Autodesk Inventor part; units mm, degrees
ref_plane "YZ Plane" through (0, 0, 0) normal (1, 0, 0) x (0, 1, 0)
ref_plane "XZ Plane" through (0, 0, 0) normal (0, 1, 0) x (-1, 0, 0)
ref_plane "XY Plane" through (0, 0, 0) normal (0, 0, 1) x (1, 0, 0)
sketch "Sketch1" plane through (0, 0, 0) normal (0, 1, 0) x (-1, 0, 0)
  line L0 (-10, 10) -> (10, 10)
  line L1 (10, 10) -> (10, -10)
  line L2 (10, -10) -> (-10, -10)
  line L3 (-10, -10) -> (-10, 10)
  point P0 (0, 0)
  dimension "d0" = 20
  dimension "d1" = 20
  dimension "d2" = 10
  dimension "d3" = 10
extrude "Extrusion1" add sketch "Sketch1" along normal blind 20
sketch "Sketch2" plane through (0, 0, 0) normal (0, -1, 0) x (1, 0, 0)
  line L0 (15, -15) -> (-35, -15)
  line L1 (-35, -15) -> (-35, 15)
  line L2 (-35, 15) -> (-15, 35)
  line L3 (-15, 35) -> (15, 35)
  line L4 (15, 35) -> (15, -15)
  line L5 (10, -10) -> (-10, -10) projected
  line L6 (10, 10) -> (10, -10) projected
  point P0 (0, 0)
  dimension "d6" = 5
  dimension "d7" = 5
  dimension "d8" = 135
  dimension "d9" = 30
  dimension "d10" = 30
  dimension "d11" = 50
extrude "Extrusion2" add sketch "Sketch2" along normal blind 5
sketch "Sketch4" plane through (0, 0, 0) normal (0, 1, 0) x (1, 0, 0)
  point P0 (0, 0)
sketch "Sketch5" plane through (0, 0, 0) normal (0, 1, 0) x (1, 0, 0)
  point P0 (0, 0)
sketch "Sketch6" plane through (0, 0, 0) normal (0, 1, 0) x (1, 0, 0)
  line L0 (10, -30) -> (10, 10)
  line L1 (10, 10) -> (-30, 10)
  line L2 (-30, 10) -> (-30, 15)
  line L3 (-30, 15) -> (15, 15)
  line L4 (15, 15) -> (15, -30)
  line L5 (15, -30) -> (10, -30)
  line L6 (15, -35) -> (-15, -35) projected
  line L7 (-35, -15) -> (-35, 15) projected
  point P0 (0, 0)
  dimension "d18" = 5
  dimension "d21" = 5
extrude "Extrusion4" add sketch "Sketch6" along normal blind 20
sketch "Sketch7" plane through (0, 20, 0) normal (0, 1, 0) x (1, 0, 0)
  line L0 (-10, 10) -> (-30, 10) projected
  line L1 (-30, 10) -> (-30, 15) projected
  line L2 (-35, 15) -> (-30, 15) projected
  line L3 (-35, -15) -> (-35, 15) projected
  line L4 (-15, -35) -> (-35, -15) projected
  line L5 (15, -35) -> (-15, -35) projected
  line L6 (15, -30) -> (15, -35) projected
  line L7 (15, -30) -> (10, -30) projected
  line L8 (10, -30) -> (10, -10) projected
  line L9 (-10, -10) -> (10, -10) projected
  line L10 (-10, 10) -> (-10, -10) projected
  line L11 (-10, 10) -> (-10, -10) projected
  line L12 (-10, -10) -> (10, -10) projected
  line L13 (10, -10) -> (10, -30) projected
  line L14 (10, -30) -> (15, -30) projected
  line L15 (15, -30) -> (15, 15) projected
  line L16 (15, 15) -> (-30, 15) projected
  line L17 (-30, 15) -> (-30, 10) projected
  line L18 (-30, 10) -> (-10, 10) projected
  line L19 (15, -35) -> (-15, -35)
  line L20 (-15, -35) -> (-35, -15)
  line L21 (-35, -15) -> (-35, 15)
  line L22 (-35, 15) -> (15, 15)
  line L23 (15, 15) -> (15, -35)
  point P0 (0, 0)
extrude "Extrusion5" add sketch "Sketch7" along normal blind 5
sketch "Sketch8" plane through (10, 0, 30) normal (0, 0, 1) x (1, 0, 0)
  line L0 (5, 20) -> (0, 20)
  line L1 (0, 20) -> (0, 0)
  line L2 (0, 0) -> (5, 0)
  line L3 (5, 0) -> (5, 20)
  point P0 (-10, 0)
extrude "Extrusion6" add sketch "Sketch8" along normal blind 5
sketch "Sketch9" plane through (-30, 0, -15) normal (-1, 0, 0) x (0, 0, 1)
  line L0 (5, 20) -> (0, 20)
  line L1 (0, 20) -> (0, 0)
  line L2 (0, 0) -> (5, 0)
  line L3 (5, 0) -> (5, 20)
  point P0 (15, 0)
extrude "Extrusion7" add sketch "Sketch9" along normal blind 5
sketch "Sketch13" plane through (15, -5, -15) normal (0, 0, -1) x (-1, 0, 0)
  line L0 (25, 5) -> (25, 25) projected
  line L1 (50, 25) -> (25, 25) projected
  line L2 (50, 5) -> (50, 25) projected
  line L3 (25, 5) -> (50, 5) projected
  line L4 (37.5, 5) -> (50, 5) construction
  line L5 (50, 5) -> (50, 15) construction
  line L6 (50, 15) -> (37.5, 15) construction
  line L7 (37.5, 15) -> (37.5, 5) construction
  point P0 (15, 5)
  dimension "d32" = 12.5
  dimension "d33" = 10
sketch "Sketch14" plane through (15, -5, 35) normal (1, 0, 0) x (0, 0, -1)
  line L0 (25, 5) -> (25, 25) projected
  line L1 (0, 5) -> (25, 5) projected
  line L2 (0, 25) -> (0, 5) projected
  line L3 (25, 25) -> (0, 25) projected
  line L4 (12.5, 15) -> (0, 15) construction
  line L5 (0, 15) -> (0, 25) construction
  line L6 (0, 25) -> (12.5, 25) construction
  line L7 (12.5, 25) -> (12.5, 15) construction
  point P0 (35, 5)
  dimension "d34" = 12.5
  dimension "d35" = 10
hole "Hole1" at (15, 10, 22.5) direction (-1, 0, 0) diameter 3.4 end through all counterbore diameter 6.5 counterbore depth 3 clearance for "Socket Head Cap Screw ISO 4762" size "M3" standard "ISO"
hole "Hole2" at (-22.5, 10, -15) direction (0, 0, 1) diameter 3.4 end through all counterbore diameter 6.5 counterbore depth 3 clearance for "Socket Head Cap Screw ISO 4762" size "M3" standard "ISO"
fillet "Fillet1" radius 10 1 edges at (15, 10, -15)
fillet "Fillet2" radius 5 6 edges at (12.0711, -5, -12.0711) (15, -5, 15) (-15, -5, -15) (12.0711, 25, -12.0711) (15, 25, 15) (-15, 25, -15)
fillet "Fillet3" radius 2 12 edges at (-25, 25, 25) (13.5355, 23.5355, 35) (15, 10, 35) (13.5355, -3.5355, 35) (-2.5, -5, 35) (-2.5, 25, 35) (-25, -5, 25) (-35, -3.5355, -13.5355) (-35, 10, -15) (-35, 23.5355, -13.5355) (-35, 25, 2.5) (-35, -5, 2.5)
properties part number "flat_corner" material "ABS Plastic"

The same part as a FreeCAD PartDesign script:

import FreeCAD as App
import Part
import Sketcher


def edges_at(feature, points):
    """Names of the edges that pass closest to the given points."""
    edges = feature.Shape.Edges
    near = lambda p: min(range(len(edges)), key=lambda i: edges[i].distToShape(Part.Vertex(*p))[0])
    return sorted({f"Edge{near(p) + 1}" for p in points})

doc = App.newDocument("Part")
body = doc.addObject("PartDesign::Body", "Body")

# Sketch on XZ plane
sketch1 = body.newObject("Sketcher::SketchObject", "Sketch")
sketch1.AttachmentSupport = (doc.getObject("XZ_Plane"), [""])
sketch1.MapMode = "FlatFace"
sketch1.addGeometry([
    Part.LineSegment(App.Vector(-10, 10, 0), App.Vector(10, 10, 0)),
    Part.LineSegment(App.Vector(10, 10, 0), App.Vector(10, -10, 0)),
    Part.LineSegment(App.Vector(10, -10, 0), App.Vector(-10, -10, 0)),
    Part.LineSegment(App.Vector(-10, -10, 0), App.Vector(-10, 10, 0)),
], False)
sketch1.addConstraint([
    Sketcher.Constraint("Coincident", 0, 2, 1, 1),
    Sketcher.Constraint("Coincident", 1, 2, 2, 1),
    Sketcher.Constraint("Coincident", 2, 2, 3, 1),
    Sketcher.Constraint("Coincident", 3, 2, 0, 1),
    Sketcher.Constraint("Horizontal", 0),
    Sketcher.Constraint("Vertical", 1),
    Sketcher.Constraint("Horizontal", 2),
    Sketcher.Constraint("Vertical", 3),
    Sketcher.Constraint("Symmetric", 0, 2, 2, 2, -1, 1),
    Sketcher.Constraint("Equal", 2, 1),
    Sketcher.Constraint("DistanceX", 0, 1, 0, 2, 20.0),
])
pad1 = body.newObject("PartDesign::Pad", "Pad")
pad1.Profile = sketch1
pad1.Length = 20
pad1.Reversed = True

# Sketch on XZ plane
sketch2 = body.newObject("Sketcher::SketchObject", "Sketch001")
sketch2.AttachmentSupport = (doc.getObject("XZ_Plane"), [""])
sketch2.MapMode = "FlatFace"
sketch2.addGeometry([
    Part.LineSegment(App.Vector(-35, -15, 0), App.Vector(15, -15, 0)),  # 0
    Part.LineSegment(App.Vector(15, -15, 0), App.Vector(15, 35, 0)),  # 1
    Part.LineSegment(App.Vector(15, 35, 0), App.Vector(-15, 35, 0)),  # 2
    Part.LineSegment(App.Vector(-15, 35, 0), App.Vector(-35, 15, 0)),  # 3
    Part.LineSegment(App.Vector(-35, 15, 0), App.Vector(-35, -15, 0)),  # 4
], False)
sketch2.addConstraint([
    Sketcher.Constraint("Coincident", 0, 2, 1, 1),
    Sketcher.Constraint("Coincident", 1, 2, 2, 1),
    Sketcher.Constraint("Coincident", 2, 2, 3, 1),
    Sketcher.Constraint("Coincident", 3, 2, 4, 1),
    Sketcher.Constraint("Coincident", 4, 2, 0, 1),
    Sketcher.Constraint("Horizontal", 0),
    Sketcher.Constraint("Vertical", 1),
    Sketcher.Constraint("Horizontal", 2),
    Sketcher.Constraint("Vertical", 4),
    Sketcher.Constraint("Equal", 0, 1),
    Sketcher.Constraint("Equal", 2, 4),
    Sketcher.Constraint("DistanceX", 0, 1, 0, 2, 50.0),
    Sketcher.Constraint("DistanceX", 2, 2, 2, 1, 30.0),
    Sketcher.Constraint("DistanceX", -1, 1, 0, 2, 15.0),
    Sketcher.Constraint("DistanceY", 0, 2, -1, 1, 15.0),
])
pad2 = body.newObject("PartDesign::Pad", "Pad001")
pad2.Profile = sketch2
pad2.Length = 5

# Sketch on XZ plane
sketch3 = body.newObject("Sketcher::SketchObject", "Sketch002")
sketch3.AttachmentSupport = (doc.getObject("XZ_Plane"), [""])
sketch3.MapMode = "FlatFace"
sketch3.addGeometry([
    Part.LineSegment(App.Vector(10, -10, 0), App.Vector(10, 30, 0)),  # 0
    Part.LineSegment(App.Vector(10, 30, 0), App.Vector(15, 30, 0)),  # 1
    Part.LineSegment(App.Vector(15, 30, 0), App.Vector(15, -15, 0)),  # 2
    Part.LineSegment(App.Vector(15, -15, 0), App.Vector(-30, -15, 0)),  # 3
    Part.LineSegment(App.Vector(-30, -15, 0), App.Vector(-30, -10, 0)),  # 4
    Part.LineSegment(App.Vector(-30, -10, 0), App.Vector(10, -10, 0)),  # 5
], False)
sketch3.addConstraint([
    Sketcher.Constraint("Coincident", 0, 2, 1, 1),
    Sketcher.Constraint("Coincident", 1, 2, 2, 1),
    Sketcher.Constraint("Coincident", 2, 2, 3, 1),
    Sketcher.Constraint("Coincident", 3, 2, 4, 1),
    Sketcher.Constraint("Coincident", 4, 2, 5, 1),
    Sketcher.Constraint("Coincident", 5, 2, 0, 1),
    Sketcher.Constraint("Vertical", 0),
    Sketcher.Constraint("Horizontal", 1),
    Sketcher.Constraint("Vertical", 2),
    Sketcher.Constraint("Horizontal", 3),
    Sketcher.Constraint("Vertical", 4),
    Sketcher.Constraint("Horizontal", 5),
    Sketcher.Constraint("Equal", 5, 0),
    Sketcher.Constraint("Equal", 3, 2),
    Sketcher.Constraint("DistanceX", 1, 1, 1, 2, 5.0),
    Sketcher.Constraint("DistanceX", 3, 2, 3, 1, 45.0),
    Sketcher.Constraint("DistanceX", -1, 1, 0, 2, 10.0),
    Sketcher.Constraint("DistanceY", -1, 1, 0, 2, 30.0),
])
pad3 = body.newObject("PartDesign::Pad", "Pad002")
pad3.Profile = sketch3
pad3.Length = 20
pad3.Reversed = True

# Sketch on XZ plane
sketch4 = body.newObject("Sketcher::SketchObject", "Sketch003")
sketch4.AttachmentSupport = (doc.getObject("XZ_Plane"), [""])
sketch4.MapMode = "FlatFace"
sketch4.AttachmentOffset = App.Placement(App.Vector(0, 0, -20), App.Rotation())
sketch4.addGeometry([
    Part.LineSegment(App.Vector(15, 35, 0), App.Vector(15, -15, 0)),  # 0
    Part.LineSegment(App.Vector(15, -15, 0), App.Vector(-35, -15, 0)),  # 1
    Part.LineSegment(App.Vector(-35, -15, 0), App.Vector(-35, 15, 0)),  # 2
    Part.LineSegment(App.Vector(-35, 15, 0), App.Vector(-15, 35, 0)),  # 3
    Part.LineSegment(App.Vector(-15, 35, 0), App.Vector(15, 35, 0)),  # 4
], False)
sketch4.addConstraint([
    Sketcher.Constraint("Coincident", 0, 2, 1, 1),
    Sketcher.Constraint("Coincident", 1, 2, 2, 1),
    Sketcher.Constraint("Coincident", 2, 2, 3, 1),
    Sketcher.Constraint("Coincident", 3, 2, 4, 1),
    Sketcher.Constraint("Coincident", 4, 2, 0, 1),
    Sketcher.Constraint("Vertical", 0),
    Sketcher.Constraint("Horizontal", 1),
    Sketcher.Constraint("Vertical", 2),
    Sketcher.Constraint("Horizontal", 4),
    Sketcher.Constraint("Equal", 1, 0),
    Sketcher.Constraint("Equal", 4, 2),
    Sketcher.Constraint("DistanceX", 1, 2, 1, 1, 50.0),
    Sketcher.Constraint("DistanceX", 4, 1, 4, 2, 30.0),
    Sketcher.Constraint("DistanceX", -1, 1, 0, 2, 15.0),
    Sketcher.Constraint("DistanceY", 0, 2, -1, 1, 15.0),
])
pad4 = body.newObject("PartDesign::Pad", "Pad003")
pad4.Profile = sketch4
pad4.Length = 5
pad4.Reversed = True

# Sketch on XY plane
sketch5 = body.newObject("Sketcher::SketchObject", "Sketch004")
sketch5.AttachmentSupport = (doc.getObject("XY_Plane"), [""])
sketch5.MapMode = "FlatFace"
sketch5.AttachmentOffset = App.Placement(App.Vector(0, 0, 30), App.Rotation())
sketch5.addGeometry([
    Part.LineSegment(App.Vector(15, 0, 0), App.Vector(15, 20, 0)),
    Part.LineSegment(App.Vector(15, 20, 0), App.Vector(10, 20, 0)),
    Part.LineSegment(App.Vector(10, 20, 0), App.Vector(10, 0, 0)),
    Part.LineSegment(App.Vector(10, 0, 0), App.Vector(15, 0, 0)),
], False)
sketch5.addConstraint([
    Sketcher.Constraint("Coincident", 0, 2, 1, 1),
    Sketcher.Constraint("Coincident", 1, 2, 2, 1),
    Sketcher.Constraint("Coincident", 2, 2, 3, 1),
    Sketcher.Constraint("Coincident", 3, 2, 0, 1),
    Sketcher.Constraint("Vertical", 0),
    Sketcher.Constraint("Horizontal", 1),
    Sketcher.Constraint("Vertical", 2),
    Sketcher.Constraint("Horizontal", 3),
    Sketcher.Constraint("PointOnObject", 2, 2, -1),
    Sketcher.Constraint("DistanceX", 1, 2, 1, 1, 5.0),
    Sketcher.Constraint("DistanceY", 0, 1, 0, 2, 20.0),
    Sketcher.Constraint("DistanceX", -1, 1, 0, 2, 15.0),
])
pad5 = body.newObject("PartDesign::Pad", "Pad004")
pad5.Profile = sketch5
pad5.Length = 5

# Sketch on YZ plane
sketch6 = body.newObject("Sketcher::SketchObject", "Sketch005")
sketch6.AttachmentSupport = (doc.getObject("YZ_Plane"), [""])
sketch6.MapMode = "FlatFace"
sketch6.AttachmentOffset = App.Placement(App.Vector(0, 0, -30), App.Rotation())
sketch6.addGeometry([
    Part.LineSegment(App.Vector(0, -10, 0), App.Vector(20, -10, 0)),
    Part.LineSegment(App.Vector(20, -10, 0), App.Vector(20, -15, 0)),
    Part.LineSegment(App.Vector(20, -15, 0), App.Vector(0, -15, 0)),
    Part.LineSegment(App.Vector(0, -15, 0), App.Vector(0, -10, 0)),
], False)
sketch6.addConstraint([
    Sketcher.Constraint("Coincident", 0, 2, 1, 1),
    Sketcher.Constraint("Coincident", 1, 2, 2, 1),
    Sketcher.Constraint("Coincident", 2, 2, 3, 1),
    Sketcher.Constraint("Coincident", 3, 2, 0, 1),
    Sketcher.Constraint("Horizontal", 0),
    Sketcher.Constraint("Vertical", 1),
    Sketcher.Constraint("Horizontal", 2),
    Sketcher.Constraint("Vertical", 3),
    Sketcher.Constraint("PointOnObject", 2, 2, -2),
    Sketcher.Constraint("DistanceX", 0, 1, 0, 2, 20.0),
    Sketcher.Constraint("DistanceY", 1, 2, 1, 1, 5.0),
    Sketcher.Constraint("DistanceY", 0, 2, -1, 1, 10.0),
])
pad6 = body.newObject("PartDesign::Pad", "Pad005")
pad6.Profile = sketch6
pad6.Length = 5
pad6.Reversed = True

# Sketch on YZ plane
sketch7 = body.newObject("Sketcher::SketchObject", "Sketch006")
sketch7.AttachmentSupport = (doc.getObject("YZ_Plane"), [""])
sketch7.MapMode = "FlatFace"
sketch7.AttachmentOffset = App.Placement(App.Vector(0, 0, 15), App.Rotation())
sketch7.addGeometry(Part.Circle(App.Vector(10, 22.5, 0), App.Vector(0, 0, 1), 1.7), False)
sketch7.addConstraint([
    Sketcher.Constraint("Diameter", 0, 3.4),
    Sketcher.Constraint("DistanceX", -1, 1, 0, 3, 10.0),
    Sketcher.Constraint("DistanceY", -1, 1, 0, 3, 22.5),
])
doc.recompute()
hole = body.newObject("PartDesign::Hole", "Hole")
hole.Profile = sketch7
hole.ThreadType = "None"
hole.Diameter = 3.4
hole.DepthType = "ThroughAll"
hole.HoleCutType = "Counterbore"
hole.HoleCutDiameter = 6.5
hole.HoleCutDepth = 3

# Sketch on XY plane
sketch8 = body.newObject("Sketcher::SketchObject", "Sketch007")
sketch8.AttachmentSupport = (doc.getObject("XY_Plane"), [""])
sketch8.MapMode = "FlatFace"
sketch8.AttachmentOffset = App.Placement(App.Vector(0, 0, -15), App.Rotation())
sketch8.addGeometry(Part.Circle(App.Vector(-22.5, 10, 0), App.Vector(0, 0, 1), 1.7), False)
sketch8.addConstraint([
    Sketcher.Constraint("Diameter", 0, 3.4),
    Sketcher.Constraint("DistanceY", -1, 1, 0, 3, 10.0),
    Sketcher.Constraint("DistanceX", 0, 3, -1, 1, 22.5),
])
doc.recompute()
hole2 = body.newObject("PartDesign::Hole", "Hole001")
hole2.Profile = sketch8
hole2.ThreadType = "None"
hole2.Diameter = 3.4
hole2.DepthType = "ThroughAll"
hole2.HoleCutType = "Counterbore"
hole2.HoleCutDiameter = 6.5
hole2.HoleCutDepth = 3
hole2.Reversed = True
doc.recompute()

fillet = body.newObject("PartDesign::Fillet", "Fillet")
fillet.Base = (hole2, edges_at(hole2, [(15, 10, -15)]))
fillet.Radius = 10
doc.recompute()

fillet2 = body.newObject("PartDesign::Fillet", "Fillet001")
fillet2.Base = (fillet, edges_at(fillet, [
    (12.071, -5, -12.071),
    (15, -5, 15),
    (-15, -5, -15),
    (12.071, 25, -12.071),
    (15, 25, 15),
    (-15, 25, -15),
]))
fillet2.Radius = 5
doc.recompute()

fillet3 = body.newObject("PartDesign::Fillet", "Fillet002")
fillet3.Base = (fillet2, edges_at(fillet2, [
    (-25, 25, 25),
    (13.536, 23.535, 35),
    (15, 10, 35),
    (13.536, -3.535, 35),
    (-2.5, -5, 35),
    (-2.5, 25, 35),
    (-25, -5, 25),
    (-35, -3.535, -13.536),
    (-35, 10, -15),
    (-35, 23.535, -13.536),
    (-35, 25, 2.5),
    (-35, -5, 2.5),
]))
fillet3.Radius = 2

doc.recompute()
